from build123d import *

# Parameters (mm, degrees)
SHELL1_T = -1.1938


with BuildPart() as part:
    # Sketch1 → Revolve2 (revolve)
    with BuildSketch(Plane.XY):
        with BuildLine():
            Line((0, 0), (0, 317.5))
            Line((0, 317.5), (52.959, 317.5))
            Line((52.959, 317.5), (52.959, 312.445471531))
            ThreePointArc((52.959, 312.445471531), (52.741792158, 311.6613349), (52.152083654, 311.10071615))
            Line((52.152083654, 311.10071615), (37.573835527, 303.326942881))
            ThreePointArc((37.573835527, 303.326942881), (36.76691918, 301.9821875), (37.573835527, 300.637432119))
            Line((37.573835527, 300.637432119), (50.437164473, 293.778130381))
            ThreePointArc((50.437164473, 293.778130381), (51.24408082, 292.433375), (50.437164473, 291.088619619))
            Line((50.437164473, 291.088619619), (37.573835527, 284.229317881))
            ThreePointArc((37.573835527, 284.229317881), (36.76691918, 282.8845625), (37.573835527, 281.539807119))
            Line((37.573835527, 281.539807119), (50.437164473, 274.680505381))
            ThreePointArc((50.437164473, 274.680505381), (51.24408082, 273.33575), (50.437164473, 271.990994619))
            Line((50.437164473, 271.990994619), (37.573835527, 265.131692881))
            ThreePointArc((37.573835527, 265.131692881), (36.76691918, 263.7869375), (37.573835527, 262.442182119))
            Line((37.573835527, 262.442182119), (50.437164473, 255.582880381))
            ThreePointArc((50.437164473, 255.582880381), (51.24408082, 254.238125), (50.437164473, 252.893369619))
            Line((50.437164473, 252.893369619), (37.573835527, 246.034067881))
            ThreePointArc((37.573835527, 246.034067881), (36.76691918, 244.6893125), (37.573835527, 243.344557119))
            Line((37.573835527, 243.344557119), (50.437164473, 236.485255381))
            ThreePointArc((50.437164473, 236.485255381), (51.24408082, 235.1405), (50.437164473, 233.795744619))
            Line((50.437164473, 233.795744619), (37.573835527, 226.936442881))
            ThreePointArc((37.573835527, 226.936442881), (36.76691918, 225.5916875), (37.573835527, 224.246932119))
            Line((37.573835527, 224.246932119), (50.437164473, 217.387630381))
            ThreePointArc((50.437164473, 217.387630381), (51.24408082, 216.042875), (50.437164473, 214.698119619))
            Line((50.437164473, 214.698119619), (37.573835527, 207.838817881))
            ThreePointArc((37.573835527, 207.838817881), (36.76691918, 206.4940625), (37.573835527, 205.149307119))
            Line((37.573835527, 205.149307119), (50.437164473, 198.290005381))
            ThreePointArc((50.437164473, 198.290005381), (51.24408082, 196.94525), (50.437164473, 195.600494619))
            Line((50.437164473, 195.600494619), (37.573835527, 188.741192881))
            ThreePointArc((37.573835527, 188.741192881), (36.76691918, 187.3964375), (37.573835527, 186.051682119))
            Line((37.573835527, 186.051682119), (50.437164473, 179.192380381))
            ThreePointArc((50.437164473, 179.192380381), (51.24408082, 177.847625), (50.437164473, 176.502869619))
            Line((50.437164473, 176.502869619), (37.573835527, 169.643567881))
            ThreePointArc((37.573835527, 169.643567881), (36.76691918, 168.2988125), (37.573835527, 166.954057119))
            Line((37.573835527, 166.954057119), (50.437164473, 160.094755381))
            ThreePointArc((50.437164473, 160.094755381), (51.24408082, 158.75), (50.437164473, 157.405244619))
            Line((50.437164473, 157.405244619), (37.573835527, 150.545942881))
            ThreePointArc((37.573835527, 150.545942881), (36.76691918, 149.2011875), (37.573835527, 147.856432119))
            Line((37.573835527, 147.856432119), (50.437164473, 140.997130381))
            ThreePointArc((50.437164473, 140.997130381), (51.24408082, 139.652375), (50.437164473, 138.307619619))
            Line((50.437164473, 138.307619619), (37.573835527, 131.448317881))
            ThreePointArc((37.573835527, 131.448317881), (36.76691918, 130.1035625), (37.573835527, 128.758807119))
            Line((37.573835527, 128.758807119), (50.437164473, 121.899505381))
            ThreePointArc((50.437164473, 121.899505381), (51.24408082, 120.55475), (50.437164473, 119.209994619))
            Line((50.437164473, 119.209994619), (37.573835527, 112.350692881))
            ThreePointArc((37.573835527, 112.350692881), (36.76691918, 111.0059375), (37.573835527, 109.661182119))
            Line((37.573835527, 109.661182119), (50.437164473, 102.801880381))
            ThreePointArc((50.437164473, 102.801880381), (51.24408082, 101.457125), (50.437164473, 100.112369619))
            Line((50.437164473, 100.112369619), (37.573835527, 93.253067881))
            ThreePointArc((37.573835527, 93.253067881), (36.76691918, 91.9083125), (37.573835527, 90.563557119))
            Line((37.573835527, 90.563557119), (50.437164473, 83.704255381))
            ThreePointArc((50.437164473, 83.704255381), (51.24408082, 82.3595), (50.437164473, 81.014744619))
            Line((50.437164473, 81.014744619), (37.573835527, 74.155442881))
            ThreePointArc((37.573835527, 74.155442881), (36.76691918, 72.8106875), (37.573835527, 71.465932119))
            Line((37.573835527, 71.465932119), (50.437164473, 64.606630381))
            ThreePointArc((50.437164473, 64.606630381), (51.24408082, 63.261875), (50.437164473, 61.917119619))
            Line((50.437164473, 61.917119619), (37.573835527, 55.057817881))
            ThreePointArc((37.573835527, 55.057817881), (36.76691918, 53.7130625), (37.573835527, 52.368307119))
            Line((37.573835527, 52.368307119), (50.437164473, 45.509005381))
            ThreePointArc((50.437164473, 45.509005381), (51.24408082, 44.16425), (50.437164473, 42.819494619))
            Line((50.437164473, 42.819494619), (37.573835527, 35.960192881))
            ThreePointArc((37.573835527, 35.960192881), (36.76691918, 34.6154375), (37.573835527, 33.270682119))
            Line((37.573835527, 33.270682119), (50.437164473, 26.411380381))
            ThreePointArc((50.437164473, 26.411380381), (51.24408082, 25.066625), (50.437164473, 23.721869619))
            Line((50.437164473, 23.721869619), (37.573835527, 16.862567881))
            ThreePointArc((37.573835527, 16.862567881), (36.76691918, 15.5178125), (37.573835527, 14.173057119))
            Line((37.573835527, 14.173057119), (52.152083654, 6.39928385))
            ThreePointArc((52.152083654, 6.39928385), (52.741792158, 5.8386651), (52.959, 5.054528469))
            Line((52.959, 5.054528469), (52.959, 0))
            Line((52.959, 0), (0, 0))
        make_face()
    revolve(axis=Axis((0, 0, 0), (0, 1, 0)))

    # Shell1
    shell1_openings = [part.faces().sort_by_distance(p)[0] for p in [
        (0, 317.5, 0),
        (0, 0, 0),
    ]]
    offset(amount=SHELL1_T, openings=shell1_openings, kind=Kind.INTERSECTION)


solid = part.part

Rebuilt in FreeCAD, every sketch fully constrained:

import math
import FreeCAD as App
import Part
import Sketcher
Q = App.Units.Quantity


def faces_at(feature, points):
    """Names of the faces that lie closest to the given points."""
    faces = feature.Shape.Faces
    near = lambda p: min(range(len(faces)), key=lambda i: faces[i].distToShape(Part.Vertex(*p))[0])
    return sorted({f"Face{near(p) + 1}" for p in points})

doc = App.newDocument("Part")
params = doc.addObject("Spreadsheet::Sheet", "Params")
for row, (alias, value) in enumerate([
    ("sketch1_radius", "0.06 in"),
    ("sketch1_height", "12.5 in"),
    ("sketch1_width", "2.085 in"),
    ("revolution_angle", "360 deg"),
    ("thickness_wall", "0.047 in"),
], start=1):
    params.set(f"A{row}", alias)
    params.set(f"B{row}", "=" + value)
    params.setAlias(f"B{row}", alias)

body = doc.addObject("PartDesign::Body", "Body")

# Sketch on XY plane
sketch1 = body.newObject("Sketcher::SketchObject", "Sketch")
sketch1.AttachmentSupport = (doc.getObject("XY_Plane"), [""])
sketch1.MapMode = "FlatFace"
sketch1.addGeometry([
    Part.LineSegment(App.Vector(0, 317.5, 0), App.Vector(0, 0, 0)),  # 0
    Part.LineSegment(App.Vector(0, 0, 0), App.Vector(52.959, 0, 0)),  # 1
    Part.LineSegment(App.Vector(52.959, 0, 0), App.Vector(52.959, 5.054528, 0)),  # 2
    Part.ArcOfCircle(Part.Circle(App.Vector(51.435, 5.054528, 0), App.Vector(0, 0, 1), 1.524), math.radians(0), math.radians(61.931468)),  # 3
    Part.LineSegment(App.Vector(52.152084, 6.399284, 0), App.Vector(37.573836, 14.173057, 0)),  # 4
    Part.ArcOfCircle(Part.Circle(App.Vector(38.290919, 15.517812, 0), App.Vector(0, 0, 1), 1.524), math.radians(118.068532), math.radians(241.931468)),  # 5
    Part.LineSegment(App.Vector(37.573836, 16.862568, 0), App.Vector(50.437164, 23.72187, 0)),  # 6
    Part.ArcOfCircle(Part.Circle(App.Vector(49.720081, 25.066625, 0), App.Vector(0, 0, 1), 1.524), math.radians(-61.931468), math.radians(61.931468)),  # 7
    Part.LineSegment(App.Vector(50.437164, 26.41138, 0), App.Vector(37.573836, 33.270682, 0)),  # 8
    Part.ArcOfCircle(Part.Circle(App.Vector(38.290919, 34.615437, 0), App.Vector(0, 0, 1), 1.524), math.radians(118.068532), math.radians(241.931468)),  # 9
    Part.LineSegment(App.Vector(37.573836, 35.960193, 0), App.Vector(50.437164, 42.819495, 0)),  # 10
    Part.ArcOfCircle(Part.Circle(App.Vector(49.720081, 44.16425, 0), App.Vector(0, 0, 1), 1.524), math.radians(-61.931468), math.radians(61.931468)),  # 11
    Part.LineSegment(App.Vector(50.437164, 45.509005, 0), App.Vector(37.573836, 52.368307, 0)),  # 12
    Part.ArcOfCircle(Part.Circle(App.Vector(38.290919, 53.713062, 0), App.Vector(0, 0, 1), 1.524), math.radians(118.068532), math.radians(241.931468)),  # 13
    Part.LineSegment(App.Vector(37.573836, 55.057818, 0), App.Vector(50.437164, 61.91712, 0)),  # 14
    Part.ArcOfCircle(Part.Circle(App.Vector(49.720081, 63.261875, 0), App.Vector(0, 0, 1), 1.524), math.radians(-61.931468), math.radians(61.931468)),  # 15
    Part.LineSegment(App.Vector(50.437164, 64.60663, 0), App.Vector(37.573836, 71.465932, 0)),  # 16
    Part.ArcOfCircle(Part.Circle(App.Vector(38.290919, 72.810688, 0), App.Vector(0, 0, 1), 1.524), math.radians(118.068532), math.radians(241.931468)),  # 17
    Part.LineSegment(App.Vector(37.573836, 74.155443, 0), App.Vector(50.437164, 81.014745, 0)),  # 18
    Part.ArcOfCircle(Part.Circle(App.Vector(49.720081, 82.3595, 0), App.Vector(0, 0, 1), 1.524), math.radians(-61.931468), math.radians(61.931468)),  # 19
    Part.LineSegment(App.Vector(50.437164, 83.704255, 0), App.Vector(37.573836, 90.563557, 0)),  # 20
    Part.ArcOfCircle(Part.Circle(App.Vector(38.290919, 91.908312, 0), App.Vector(0, 0, 1), 1.524), math.radians(118.068532), math.radians(241.931468)),  # 21
    Part.LineSegment(App.Vector(37.573836, 93.253068, 0), App.Vector(50.437164, 100.11237, 0)),  # 22
    Part.ArcOfCircle(Part.Circle(App.Vector(49.720081, 101.457125, 0), App.Vector(0, 0, 1), 1.524), math.radians(-61.931468), math.radians(61.931468)),  # 23
    Part.LineSegment(App.Vector(50.437164, 102.80188, 0), App.Vector(37.573836, 109.661182, 0)),  # 24
    Part.ArcOfCircle(Part.Circle(App.Vector(38.290919, 111.005938, 0), App.Vector(0, 0, 1), 1.524), math.radians(118.068532), math.radians(241.931468)),  # 25
    Part.LineSegment(App.Vector(37.573836, 112.350693, 0), App.Vector(50.437164, 119.209995, 0)),  # 26
    Part.ArcOfCircle(Part.Circle(App.Vector(49.720081, 120.55475, 0), App.Vector(0, 0, 1), 1.524), math.radians(-61.931468), math.radians(61.931468)),  # 27
    Part.LineSegment(App.Vector(50.437164, 121.899505, 0), App.Vector(37.573836, 128.758807, 0)),  # 28
    Part.ArcOfCircle(Part.Circle(App.Vector(38.290919, 130.103563, 0), App.Vector(0, 0, 1), 1.524), math.radians(118.068532), math.radians(241.931468)),  # 29
    Part.LineSegment(App.Vector(37.573836, 131.448318, 0), App.Vector(50.437164, 138.30762, 0)),  # 30
    Part.ArcOfCircle(Part.Circle(App.Vector(49.720081, 139.652375, 0), App.Vector(0, 0, 1), 1.524), math.radians(-61.931468), math.radians(61.931468)),  # 31
    Part.LineSegment(App.Vector(50.437164, 140.99713, 0), App.Vector(37.573836, 147.856432, 0)),  # 32
    Part.ArcOfCircle(Part.Circle(App.Vector(38.290919, 149.201188, 0), App.Vector(0, 0, 1), 1.524), math.radians(118.068532), math.radians(241.931468)),  # 33
    Part.LineSegment(App.Vector(37.573836, 150.545943, 0), App.Vector(50.437164, 157.405245, 0)),  # 34
    Part.ArcOfCircle(Part.Circle(App.Vector(49.720081, 158.75, 0), App.Vector(0, 0, 1), 1.524), math.radians(-61.931468), math.radians(61.931468)),  # 35
    Part.LineSegment(App.Vector(50.437164, 160.094755, 0), App.Vector(37.573836, 166.954057, 0)),  # 36
    Part.ArcOfCircle(Part.Circle(App.Vector(38.290919, 168.298812, 0), App.Vector(0, 0, 1), 1.524), math.radians(118.068532), math.radians(241.931468)),  # 37
    Part.LineSegment(App.Vector(37.573836, 169.643568, 0), App.Vector(50.437164, 176.50287, 0)),  # 38
    Part.ArcOfCircle(Part.Circle(App.Vector(49.720081, 177.847625, 0), App.Vector(0, 0, 1), 1.524), math.radians(-61.931468), math.radians(61.931468)),  # 39
    Part.LineSegment(App.Vector(50.437164, 179.19238, 0), App.Vector(37.573836, 186.051682, 0)),  # 40
    Part.ArcOfCircle(Part.Circle(App.Vector(38.290919, 187.396437, 0), App.Vector(0, 0, 1), 1.524), math.radians(118.068532), math.radians(241.931468)),  # 41
    Part.LineSegment(App.Vector(37.573836, 188.741193, 0), App.Vector(50.437164, 195.600495, 0)),  # 42
    Part.ArcOfCircle(Part.Circle(App.Vector(49.720081, 196.94525, 0), App.Vector(0, 0, 1), 1.524), math.radians(-61.931468), math.radians(61.931468)),  # 43
    Part.LineSegment(App.Vector(50.437164, 198.290005, 0), App.Vector(37.573836, 205.149307, 0)),  # 44
    Part.ArcOfCircle(Part.Circle(App.Vector(38.290919, 206.494063, 0), App.Vector(0, 0, 1), 1.524), math.radians(118.068532), math.radians(241.931468)),  # 45
    Part.LineSegment(App.Vector(37.573836, 207.838818, 0), App.Vector(50.437164, 214.69812, 0)),  # 46
    Part.ArcOfCircle(Part.Circle(App.Vector(49.720081, 216.042875, 0), App.Vector(0, 0, 1), 1.524), math.radians(-61.931468), math.radians(61.931468)),  # 47
    Part.LineSegment(App.Vector(50.437164, 217.38763, 0), App.Vector(37.573836, 224.246932, 0)),  # 48
    Part.ArcOfCircle(Part.Circle(App.Vector(38.290919, 225.591688, 0), App.Vector(0, 0, 1), 1.524), math.radians(118.068532), math.radians(241.931468)),  # 49
    Part.LineSegment(App.Vector(37.573836, 226.936443, 0), App.Vector(50.437164, 233.795745, 0)),  # 50
    Part.ArcOfCircle(Part.Circle(App.Vector(49.720081, 235.1405, 0), App.Vector(0, 0, 1), 1.524), math.radians(-61.931468), math.radians(61.931468)),  # 51
    Part.LineSegment(App.Vector(50.437164, 236.485255, 0), App.Vector(37.573836, 243.344557, 0)),  # 52
    Part.ArcOfCircle(Part.Circle(App.Vector(38.290919, 244.689312, 0), App.Vector(0, 0, 1), 1.524), math.radians(118.068532), math.radians(241.931468)),  # 53
    Part.LineSegment(App.Vector(37.573836, 246.034068, 0), App.Vector(50.437164, 252.89337, 0)),  # 54
    Part.ArcOfCircle(Part.Circle(App.Vector(49.720081, 254.238125, 0), App.Vector(0, 0, 1), 1.524), math.radians(-61.931468), math.radians(61.931468)),  # 55
    Part.LineSegment(App.Vector(50.437164, 255.58288, 0), App.Vector(37.573836, 262.442182, 0)),  # 56
    Part.ArcOfCircle(Part.Circle(App.Vector(38.290919, 263.786938, 0), App.Vector(0, 0, 1), 1.524), math.radians(118.068532), math.radians(241.931468)),  # 57
    Part.LineSegment(App.Vector(37.573836, 265.131693, 0), App.Vector(50.437164, 271.990995, 0)),  # 58
    Part.ArcOfCircle(Part.Circle(App.Vector(49.720081, 273.33575, 0), App.Vector(0, 0, 1), 1.524), math.radians(-61.931468), math.radians(61.931468)),  # 59
    Part.LineSegment(App.Vector(50.437164, 274.680505, 0), App.Vector(37.573836, 281.539807, 0)),  # 60
    Part.ArcOfCircle(Part.Circle(App.Vector(38.290919, 282.884563, 0), App.Vector(0, 0, 1), 1.524), math.radians(118.068532), math.radians(241.931468)),  # 61
    Part.LineSegment(App.Vector(37.573836, 284.229318, 0), App.Vector(50.437164, 291.08862, 0)),  # 62
    Part.ArcOfCircle(Part.Circle(App.Vector(49.720081, 292.433375, 0), App.Vector(0, 0, 1), 1.524), math.radians(-61.931468), math.radians(61.931468)),  # 63
    Part.LineSegment(App.Vector(50.437164, 293.77813, 0), App.Vector(37.573836, 300.637432, 0)),  # 64
    Part.ArcOfCircle(Part.Circle(App.Vector(38.290919, 301.982188, 0), App.Vector(0, 0, 1), 1.524), math.radians(118.068532), math.radians(241.931468)),  # 65
    Part.LineSegment(App.Vector(37.573836, 303.326943, 0), App.Vector(52.152084, 311.100716, 0)),  # 66
    Part.ArcOfCircle(Part.Circle(App.Vector(51.435, 312.445472, 0), App.Vector(0, 0, 1), 1.524), math.radians(-61.931468), math.radians(0)),  # 67
    Part.LineSegment(App.Vector(52.959, 312.445472, 0), App.Vector(52.959, 317.5, 0)),  # 68
    Part.LineSegment(App.Vector(52.959, 317.5, 0), App.Vector(0, 317.5, 0)),  # 69
], False)
sketch1.addConstraint([
    Sketcher.Constraint("Coincident", 0, 2, 1, 1),
    Sketcher.Constraint("Coincident", 1, 2, 2, 1),
    Sketcher.Constraint("Tangent", 2, 2, 3, 1),
    Sketcher.Constraint("Tangent", 3, 2, 4, 1),
    Sketcher.Constraint("Tangent", 4, 2, 5, 2),
    Sketcher.Constraint("Tangent", 5, 1, 6, 1),
    Sketcher.Constraint("Tangent", 6, 2, 7, 1),
    Sketcher.Constraint("Tangent", 7, 2, 8, 1),
    Sketcher.Constraint("Tangent", 8, 2, 9, 2),
    Sketcher.Constraint("Tangent", 9, 1, 10, 1),
    Sketcher.Constraint("Tangent", 10, 2, 11, 1),
    Sketcher.Constraint("Tangent", 11, 2, 12, 1),
    Sketcher.Constraint("Tangent", 12, 2, 13, 2),
    Sketcher.Constraint("Tangent", 13, 1, 14, 1),
    Sketcher.Constraint("Tangent", 14, 2, 15, 1),
    Sketcher.Constraint("Tangent", 15, 2, 16, 1),
    Sketcher.Constraint("Tangent", 16, 2, 17, 2),
    Sketcher.Constraint("Tangent", 17, 1, 18, 1),
    Sketcher.Constraint("Tangent", 18, 2, 19, 1),
    Sketcher.Constraint("Tangent", 19, 2, 20, 1),
    Sketcher.Constraint("Tangent", 20, 2, 21, 2),
    Sketcher.Constraint("Tangent", 21, 1, 22, 1),
    Sketcher.Constraint("Tangent", 22, 2, 23, 1),
    Sketcher.Constraint("Tangent", 23, 2, 24, 1),
    Sketcher.Constraint("Tangent", 24, 2, 25, 2),
    Sketcher.Constraint("Tangent", 25, 1, 26, 1),
    Sketcher.Constraint("Tangent", 26, 2, 27, 1),
    Sketcher.Constraint("Tangent", 27, 2, 28, 1),
    Sketcher.Constraint("Tangent", 28, 2, 29, 2),
    Sketcher.Constraint("Tangent", 29, 1, 30, 1),
    Sketcher.Constraint("Tangent", 30, 2, 31, 1),
    Sketcher.Constraint("Tangent", 31, 2, 32, 1),
    Sketcher.Constraint("Tangent", 32, 2, 33, 2),
    Sketcher.Constraint("Tangent", 33, 1, 34, 1),
    Sketcher.Constraint("Tangent", 34, 2, 35, 1),
    Sketcher.Constraint("Tangent", 35, 2, 36, 1),
    Sketcher.Constraint("Tangent", 36, 2, 37, 2),
    Sketcher.Constraint("Tangent", 37, 1, 38, 1),
    Sketcher.Constraint("Tangent", 38, 2, 39, 1),
    Sketcher.Constraint("Tangent", 39, 2, 40, 1),
    Sketcher.Constraint("Tangent", 40, 2, 41, 2),
    Sketcher.Constraint("Tangent", 41, 1, 42, 1),
    Sketcher.Constraint("Tangent", 42, 2, 43, 1),
    Sketcher.Constraint("Tangent", 43, 2, 44, 1),
    Sketcher.Constraint("Tangent", 44, 2, 45, 2),
    Sketcher.Constraint("Tangent", 45, 1, 46, 1),
    Sketcher.Constraint("Tangent", 46, 2, 47, 1),
    Sketcher.Constraint("Tangent", 47, 2, 48, 1),
    Sketcher.Constraint("Tangent", 48, 2, 49, 2),
    Sketcher.Constraint("Tangent", 49, 1, 50, 1),
    Sketcher.Constraint("Tangent", 50, 2, 51, 1),
    Sketcher.Constraint("Tangent", 51, 2, 52, 1),
    Sketcher.Constraint("Tangent", 52, 2, 53, 2),
    Sketcher.Constraint("Tangent", 53, 1, 54, 1),
    Sketcher.Constraint("Tangent", 54, 2, 55, 1),
    Sketcher.Constraint("Tangent", 55, 2, 56, 1),
    Sketcher.Constraint("Tangent", 56, 2, 57, 2),
    Sketcher.Constraint("Tangent", 57, 1, 58, 1),
    Sketcher.Constraint("Tangent", 58, 2, 59, 1),
    Sketcher.Constraint("Tangent", 59, 2, 60, 1),
    Sketcher.Constraint("Tangent", 60, 2, 61, 2),
    Sketcher.Constraint("Tangent", 61, 1, 62, 1),
    Sketcher.Constraint("Tangent", 62, 2, 63, 1),
    Sketcher.Constraint("Tangent", 63, 2, 64, 1),
    Sketcher.Constraint("Tangent", 64, 2, 65, 2),
    Sketcher.Constraint("Tangent", 65, 1, 66, 1),
    Sketcher.Constraint("Tangent", 66, 2, 67, 1),
    Sketcher.Constraint("Tangent", 67, 2, 68, 1),
    Sketcher.Constraint("Coincident", 68, 2, 69, 1),
    Sketcher.Constraint("Coincident", 69, 2, 0, 1),
    Sketcher.Constraint("Vertical", 0),
    Sketcher.Constraint("Horizontal", 1),
    Sketcher.Constraint("Vertical", 2),
    Sketcher.Constraint("Vertical", 68),
    Sketcher.Constraint("Horizontal", 69),
    Sketcher.Constraint("Coincident", 0, 2, -1, 1),
    Sketcher.Constraint("Equal", 3, 5),
    Sketcher.Constraint("Equal", 5, 7),
    Sketcher.Constraint("Equal", 7, 9),
    Sketcher.Constraint("Equal", 9, 11),
    Sketcher.Constraint("Equal", 11, 13),
    Sketcher.Constraint("Equal", 13, 15),
    Sketcher.Constraint("Equal", 15, 17),
    Sketcher.Constraint("Equal", 17, 19),
    Sketcher.Constraint("Equal", 19, 21),
    Sketcher.Constraint("Equal", 21, 23),
    Sketcher.Constraint("Equal", 23, 25),
    Sketcher.Constraint("Equal", 25, 27),
    Sketcher.Constraint("Equal", 27, 29),
    Sketcher.Constraint("Equal", 29, 31),
    Sketcher.Constraint("Equal", 31, 33),
    Sketcher.Constraint("Equal", 33, 35),
    Sketcher.Constraint("Equal", 35, 37),
    Sketcher.Constraint("Equal", 37, 39),
    Sketcher.Constraint("Equal", 39, 41),
    Sketcher.Constraint("Equal", 41, 43),
    Sketcher.Constraint("Equal", 43, 45),
    Sketcher.Constraint("Equal", 45, 47),
    Sketcher.Constraint("Equal", 47, 49),
    Sketcher.Constraint("Equal", 49, 51),
    Sketcher.Constraint("Equal", 51, 53),
    Sketcher.Constraint("Equal", 53, 55),
    Sketcher.Constraint("Equal", 55, 57),
    Sketcher.Constraint("Equal", 57, 59),
    Sketcher.Constraint("Equal", 59, 61),
    Sketcher.Constraint("Equal", 61, 63),
    Sketcher.Constraint("Equal", 63, 65),
    Sketcher.Constraint("Equal", 65, 67),
    Sketcher.Constraint("Parallel", 4, 8),
    Sketcher.Constraint("Parallel", 6, 10),
    Sketcher.Constraint("Parallel", 8, 12),
    Sketcher.Constraint("Parallel", 10, 14),
    Sketcher.Constraint("Parallel", 12, 16),
    Sketcher.Constraint("Parallel", 14, 18),
    Sketcher.Constraint("Parallel", 16, 20),
    Sketcher.Constraint("Parallel", 18, 22),
    Sketcher.Constraint("Parallel", 20, 24),
    Sketcher.Constraint("Parallel", 22, 26),
    Sketcher.Constraint("Parallel", 24, 28),
    Sketcher.Constraint("Parallel", 26, 30),
    Sketcher.Constraint("Parallel", 28, 32),
    Sketcher.Constraint("Parallel", 30, 34),
    Sketcher.Constraint("Parallel", 32, 36),
    Sketcher.Constraint("Parallel", 34, 38),
    Sketcher.Constraint("Parallel", 36, 40),
    Sketcher.Constraint("Parallel", 38, 42),
    Sketcher.Constraint("Parallel", 40, 44),
    Sketcher.Constraint("Parallel", 42, 46),
    Sketcher.Constraint("Parallel", 44, 48),
    Sketcher.Constraint("Parallel", 46, 50),
    Sketcher.Constraint("Parallel", 48, 52),
    Sketcher.Constraint("Parallel", 50, 54),
    Sketcher.Constraint("Parallel", 52, 56),
    Sketcher.Constraint("Parallel", 54, 58),
    Sketcher.Constraint("Parallel", 56, 60),
    Sketcher.Constraint("Parallel", 58, 62),
    Sketcher.Constraint("Parallel", 60, 64),
    Sketcher.Constraint("Parallel", 62, 66),
    Sketcher.Constraint("Vertical", 5, 3, 9, 3),
    Sketcher.Constraint("Vertical", 7, 3, 11, 3),
    Sketcher.Constraint("Vertical", 9, 3, 13, 3),
    Sketcher.Constraint("Vertical", 11, 3, 15, 3),
    Sketcher.Constraint("Vertical", 13, 3, 17, 3),
    Sketcher.Constraint("Vertical", 15, 3, 19, 3),
    Sketcher.Constraint("Vertical", 17, 3, 21, 3),
    Sketcher.Constraint("Vertical", 19, 3, 23, 3),
    Sketcher.Constraint("Vertical", 21, 3, 25, 3),
    Sketcher.Constraint("Vertical", 23, 3, 27, 3),
    Sketcher.Constraint("Vertical", 25, 3, 29, 3),
    Sketcher.Constraint("Vertical", 27, 3, 31, 3),
    Sketcher.Constraint("Vertical", 29, 3, 33, 3),
    Sketcher.Constraint("Vertical", 31, 3, 35, 3),
    Sketcher.Constraint("Vertical", 33, 3, 37, 3),
    Sketcher.Constraint("Vertical", 35, 3, 39, 3),
    Sketcher.Constraint("Vertical", 37, 3, 41, 3),
    Sketcher.Constraint("Vertical", 39, 3, 43, 3),
    Sketcher.Constraint("Vertical", 41, 3, 45, 3),
    Sketcher.Constraint("Vertical", 43, 3, 47, 3),
    Sketcher.Constraint("Vertical", 45, 3, 49, 3),
    Sketcher.Constraint("Vertical", 47, 3, 51, 3),
    Sketcher.Constraint("Vertical", 49, 3, 53, 3),
    Sketcher.Constraint("Vertical", 51, 3, 55, 3),
    Sketcher.Constraint("Vertical", 53, 3, 57, 3),
    Sketcher.Constraint("Vertical", 55, 3, 59, 3),
    Sketcher.Constraint("Vertical", 57, 3, 61, 3),
    Sketcher.Constraint("Vertical", 59, 3, 63, 3),
    Sketcher.Constraint("Vertical", 61, 3, 65, 3),
    Sketcher.Constraint("Vertical", 3, 3, 67, 3),
    Sketcher.Constraint("Vertical", 4, 2, 5, 1),
    Sketcher.Constraint("Equal", 2, 68),
    Sketcher.Constraint("Radius", 3, Q("0.06 in")),
    Sketcher.Constraint("DistanceY", 0, 2, 0, 1, Q("12.5 in")),
    Sketcher.Constraint("DistanceX", 1, 1, 1, 2, Q("2.085 in")),
    Sketcher.Constraint("DistanceY", -1, 1, 19, 3, Q("3.2425 in")),
    Sketcher.Constraint("DistanceY", 2, 1, 2, 2, Q("5.054528 mm")),
    Sketcher.Constraint("DistanceX", -1, 1, 5, 3, Q("38.290919 mm")),
])
sketch1.setExpression("Constraints[170]", "Params.sketch1_radius")
sketch1.setExpression("Constraints[171]", "Params.sketch1_height")
sketch1.setExpression("Constraints[172]", "Params.sketch1_width")
revolution = body.newObject("PartDesign::Revolution", "Revolution")
revolution.Profile = sketch1
revolution.ReferenceAxis = (sketch1, ["V_Axis"])
revolution.setExpression("Angle", "Params.revolution_angle")
doc.recompute()

thickness = body.newObject("PartDesign::Thickness", "Thickness")
thickness.Base = (revolution, faces_at(revolution, [(0, 317.5, 0), (0, 0, 0)]))
thickness.setExpression("Value", "Params.thickness_wall")
thickness.Reversed = True
thickness.Join = "Intersection"

doc.recompute()
